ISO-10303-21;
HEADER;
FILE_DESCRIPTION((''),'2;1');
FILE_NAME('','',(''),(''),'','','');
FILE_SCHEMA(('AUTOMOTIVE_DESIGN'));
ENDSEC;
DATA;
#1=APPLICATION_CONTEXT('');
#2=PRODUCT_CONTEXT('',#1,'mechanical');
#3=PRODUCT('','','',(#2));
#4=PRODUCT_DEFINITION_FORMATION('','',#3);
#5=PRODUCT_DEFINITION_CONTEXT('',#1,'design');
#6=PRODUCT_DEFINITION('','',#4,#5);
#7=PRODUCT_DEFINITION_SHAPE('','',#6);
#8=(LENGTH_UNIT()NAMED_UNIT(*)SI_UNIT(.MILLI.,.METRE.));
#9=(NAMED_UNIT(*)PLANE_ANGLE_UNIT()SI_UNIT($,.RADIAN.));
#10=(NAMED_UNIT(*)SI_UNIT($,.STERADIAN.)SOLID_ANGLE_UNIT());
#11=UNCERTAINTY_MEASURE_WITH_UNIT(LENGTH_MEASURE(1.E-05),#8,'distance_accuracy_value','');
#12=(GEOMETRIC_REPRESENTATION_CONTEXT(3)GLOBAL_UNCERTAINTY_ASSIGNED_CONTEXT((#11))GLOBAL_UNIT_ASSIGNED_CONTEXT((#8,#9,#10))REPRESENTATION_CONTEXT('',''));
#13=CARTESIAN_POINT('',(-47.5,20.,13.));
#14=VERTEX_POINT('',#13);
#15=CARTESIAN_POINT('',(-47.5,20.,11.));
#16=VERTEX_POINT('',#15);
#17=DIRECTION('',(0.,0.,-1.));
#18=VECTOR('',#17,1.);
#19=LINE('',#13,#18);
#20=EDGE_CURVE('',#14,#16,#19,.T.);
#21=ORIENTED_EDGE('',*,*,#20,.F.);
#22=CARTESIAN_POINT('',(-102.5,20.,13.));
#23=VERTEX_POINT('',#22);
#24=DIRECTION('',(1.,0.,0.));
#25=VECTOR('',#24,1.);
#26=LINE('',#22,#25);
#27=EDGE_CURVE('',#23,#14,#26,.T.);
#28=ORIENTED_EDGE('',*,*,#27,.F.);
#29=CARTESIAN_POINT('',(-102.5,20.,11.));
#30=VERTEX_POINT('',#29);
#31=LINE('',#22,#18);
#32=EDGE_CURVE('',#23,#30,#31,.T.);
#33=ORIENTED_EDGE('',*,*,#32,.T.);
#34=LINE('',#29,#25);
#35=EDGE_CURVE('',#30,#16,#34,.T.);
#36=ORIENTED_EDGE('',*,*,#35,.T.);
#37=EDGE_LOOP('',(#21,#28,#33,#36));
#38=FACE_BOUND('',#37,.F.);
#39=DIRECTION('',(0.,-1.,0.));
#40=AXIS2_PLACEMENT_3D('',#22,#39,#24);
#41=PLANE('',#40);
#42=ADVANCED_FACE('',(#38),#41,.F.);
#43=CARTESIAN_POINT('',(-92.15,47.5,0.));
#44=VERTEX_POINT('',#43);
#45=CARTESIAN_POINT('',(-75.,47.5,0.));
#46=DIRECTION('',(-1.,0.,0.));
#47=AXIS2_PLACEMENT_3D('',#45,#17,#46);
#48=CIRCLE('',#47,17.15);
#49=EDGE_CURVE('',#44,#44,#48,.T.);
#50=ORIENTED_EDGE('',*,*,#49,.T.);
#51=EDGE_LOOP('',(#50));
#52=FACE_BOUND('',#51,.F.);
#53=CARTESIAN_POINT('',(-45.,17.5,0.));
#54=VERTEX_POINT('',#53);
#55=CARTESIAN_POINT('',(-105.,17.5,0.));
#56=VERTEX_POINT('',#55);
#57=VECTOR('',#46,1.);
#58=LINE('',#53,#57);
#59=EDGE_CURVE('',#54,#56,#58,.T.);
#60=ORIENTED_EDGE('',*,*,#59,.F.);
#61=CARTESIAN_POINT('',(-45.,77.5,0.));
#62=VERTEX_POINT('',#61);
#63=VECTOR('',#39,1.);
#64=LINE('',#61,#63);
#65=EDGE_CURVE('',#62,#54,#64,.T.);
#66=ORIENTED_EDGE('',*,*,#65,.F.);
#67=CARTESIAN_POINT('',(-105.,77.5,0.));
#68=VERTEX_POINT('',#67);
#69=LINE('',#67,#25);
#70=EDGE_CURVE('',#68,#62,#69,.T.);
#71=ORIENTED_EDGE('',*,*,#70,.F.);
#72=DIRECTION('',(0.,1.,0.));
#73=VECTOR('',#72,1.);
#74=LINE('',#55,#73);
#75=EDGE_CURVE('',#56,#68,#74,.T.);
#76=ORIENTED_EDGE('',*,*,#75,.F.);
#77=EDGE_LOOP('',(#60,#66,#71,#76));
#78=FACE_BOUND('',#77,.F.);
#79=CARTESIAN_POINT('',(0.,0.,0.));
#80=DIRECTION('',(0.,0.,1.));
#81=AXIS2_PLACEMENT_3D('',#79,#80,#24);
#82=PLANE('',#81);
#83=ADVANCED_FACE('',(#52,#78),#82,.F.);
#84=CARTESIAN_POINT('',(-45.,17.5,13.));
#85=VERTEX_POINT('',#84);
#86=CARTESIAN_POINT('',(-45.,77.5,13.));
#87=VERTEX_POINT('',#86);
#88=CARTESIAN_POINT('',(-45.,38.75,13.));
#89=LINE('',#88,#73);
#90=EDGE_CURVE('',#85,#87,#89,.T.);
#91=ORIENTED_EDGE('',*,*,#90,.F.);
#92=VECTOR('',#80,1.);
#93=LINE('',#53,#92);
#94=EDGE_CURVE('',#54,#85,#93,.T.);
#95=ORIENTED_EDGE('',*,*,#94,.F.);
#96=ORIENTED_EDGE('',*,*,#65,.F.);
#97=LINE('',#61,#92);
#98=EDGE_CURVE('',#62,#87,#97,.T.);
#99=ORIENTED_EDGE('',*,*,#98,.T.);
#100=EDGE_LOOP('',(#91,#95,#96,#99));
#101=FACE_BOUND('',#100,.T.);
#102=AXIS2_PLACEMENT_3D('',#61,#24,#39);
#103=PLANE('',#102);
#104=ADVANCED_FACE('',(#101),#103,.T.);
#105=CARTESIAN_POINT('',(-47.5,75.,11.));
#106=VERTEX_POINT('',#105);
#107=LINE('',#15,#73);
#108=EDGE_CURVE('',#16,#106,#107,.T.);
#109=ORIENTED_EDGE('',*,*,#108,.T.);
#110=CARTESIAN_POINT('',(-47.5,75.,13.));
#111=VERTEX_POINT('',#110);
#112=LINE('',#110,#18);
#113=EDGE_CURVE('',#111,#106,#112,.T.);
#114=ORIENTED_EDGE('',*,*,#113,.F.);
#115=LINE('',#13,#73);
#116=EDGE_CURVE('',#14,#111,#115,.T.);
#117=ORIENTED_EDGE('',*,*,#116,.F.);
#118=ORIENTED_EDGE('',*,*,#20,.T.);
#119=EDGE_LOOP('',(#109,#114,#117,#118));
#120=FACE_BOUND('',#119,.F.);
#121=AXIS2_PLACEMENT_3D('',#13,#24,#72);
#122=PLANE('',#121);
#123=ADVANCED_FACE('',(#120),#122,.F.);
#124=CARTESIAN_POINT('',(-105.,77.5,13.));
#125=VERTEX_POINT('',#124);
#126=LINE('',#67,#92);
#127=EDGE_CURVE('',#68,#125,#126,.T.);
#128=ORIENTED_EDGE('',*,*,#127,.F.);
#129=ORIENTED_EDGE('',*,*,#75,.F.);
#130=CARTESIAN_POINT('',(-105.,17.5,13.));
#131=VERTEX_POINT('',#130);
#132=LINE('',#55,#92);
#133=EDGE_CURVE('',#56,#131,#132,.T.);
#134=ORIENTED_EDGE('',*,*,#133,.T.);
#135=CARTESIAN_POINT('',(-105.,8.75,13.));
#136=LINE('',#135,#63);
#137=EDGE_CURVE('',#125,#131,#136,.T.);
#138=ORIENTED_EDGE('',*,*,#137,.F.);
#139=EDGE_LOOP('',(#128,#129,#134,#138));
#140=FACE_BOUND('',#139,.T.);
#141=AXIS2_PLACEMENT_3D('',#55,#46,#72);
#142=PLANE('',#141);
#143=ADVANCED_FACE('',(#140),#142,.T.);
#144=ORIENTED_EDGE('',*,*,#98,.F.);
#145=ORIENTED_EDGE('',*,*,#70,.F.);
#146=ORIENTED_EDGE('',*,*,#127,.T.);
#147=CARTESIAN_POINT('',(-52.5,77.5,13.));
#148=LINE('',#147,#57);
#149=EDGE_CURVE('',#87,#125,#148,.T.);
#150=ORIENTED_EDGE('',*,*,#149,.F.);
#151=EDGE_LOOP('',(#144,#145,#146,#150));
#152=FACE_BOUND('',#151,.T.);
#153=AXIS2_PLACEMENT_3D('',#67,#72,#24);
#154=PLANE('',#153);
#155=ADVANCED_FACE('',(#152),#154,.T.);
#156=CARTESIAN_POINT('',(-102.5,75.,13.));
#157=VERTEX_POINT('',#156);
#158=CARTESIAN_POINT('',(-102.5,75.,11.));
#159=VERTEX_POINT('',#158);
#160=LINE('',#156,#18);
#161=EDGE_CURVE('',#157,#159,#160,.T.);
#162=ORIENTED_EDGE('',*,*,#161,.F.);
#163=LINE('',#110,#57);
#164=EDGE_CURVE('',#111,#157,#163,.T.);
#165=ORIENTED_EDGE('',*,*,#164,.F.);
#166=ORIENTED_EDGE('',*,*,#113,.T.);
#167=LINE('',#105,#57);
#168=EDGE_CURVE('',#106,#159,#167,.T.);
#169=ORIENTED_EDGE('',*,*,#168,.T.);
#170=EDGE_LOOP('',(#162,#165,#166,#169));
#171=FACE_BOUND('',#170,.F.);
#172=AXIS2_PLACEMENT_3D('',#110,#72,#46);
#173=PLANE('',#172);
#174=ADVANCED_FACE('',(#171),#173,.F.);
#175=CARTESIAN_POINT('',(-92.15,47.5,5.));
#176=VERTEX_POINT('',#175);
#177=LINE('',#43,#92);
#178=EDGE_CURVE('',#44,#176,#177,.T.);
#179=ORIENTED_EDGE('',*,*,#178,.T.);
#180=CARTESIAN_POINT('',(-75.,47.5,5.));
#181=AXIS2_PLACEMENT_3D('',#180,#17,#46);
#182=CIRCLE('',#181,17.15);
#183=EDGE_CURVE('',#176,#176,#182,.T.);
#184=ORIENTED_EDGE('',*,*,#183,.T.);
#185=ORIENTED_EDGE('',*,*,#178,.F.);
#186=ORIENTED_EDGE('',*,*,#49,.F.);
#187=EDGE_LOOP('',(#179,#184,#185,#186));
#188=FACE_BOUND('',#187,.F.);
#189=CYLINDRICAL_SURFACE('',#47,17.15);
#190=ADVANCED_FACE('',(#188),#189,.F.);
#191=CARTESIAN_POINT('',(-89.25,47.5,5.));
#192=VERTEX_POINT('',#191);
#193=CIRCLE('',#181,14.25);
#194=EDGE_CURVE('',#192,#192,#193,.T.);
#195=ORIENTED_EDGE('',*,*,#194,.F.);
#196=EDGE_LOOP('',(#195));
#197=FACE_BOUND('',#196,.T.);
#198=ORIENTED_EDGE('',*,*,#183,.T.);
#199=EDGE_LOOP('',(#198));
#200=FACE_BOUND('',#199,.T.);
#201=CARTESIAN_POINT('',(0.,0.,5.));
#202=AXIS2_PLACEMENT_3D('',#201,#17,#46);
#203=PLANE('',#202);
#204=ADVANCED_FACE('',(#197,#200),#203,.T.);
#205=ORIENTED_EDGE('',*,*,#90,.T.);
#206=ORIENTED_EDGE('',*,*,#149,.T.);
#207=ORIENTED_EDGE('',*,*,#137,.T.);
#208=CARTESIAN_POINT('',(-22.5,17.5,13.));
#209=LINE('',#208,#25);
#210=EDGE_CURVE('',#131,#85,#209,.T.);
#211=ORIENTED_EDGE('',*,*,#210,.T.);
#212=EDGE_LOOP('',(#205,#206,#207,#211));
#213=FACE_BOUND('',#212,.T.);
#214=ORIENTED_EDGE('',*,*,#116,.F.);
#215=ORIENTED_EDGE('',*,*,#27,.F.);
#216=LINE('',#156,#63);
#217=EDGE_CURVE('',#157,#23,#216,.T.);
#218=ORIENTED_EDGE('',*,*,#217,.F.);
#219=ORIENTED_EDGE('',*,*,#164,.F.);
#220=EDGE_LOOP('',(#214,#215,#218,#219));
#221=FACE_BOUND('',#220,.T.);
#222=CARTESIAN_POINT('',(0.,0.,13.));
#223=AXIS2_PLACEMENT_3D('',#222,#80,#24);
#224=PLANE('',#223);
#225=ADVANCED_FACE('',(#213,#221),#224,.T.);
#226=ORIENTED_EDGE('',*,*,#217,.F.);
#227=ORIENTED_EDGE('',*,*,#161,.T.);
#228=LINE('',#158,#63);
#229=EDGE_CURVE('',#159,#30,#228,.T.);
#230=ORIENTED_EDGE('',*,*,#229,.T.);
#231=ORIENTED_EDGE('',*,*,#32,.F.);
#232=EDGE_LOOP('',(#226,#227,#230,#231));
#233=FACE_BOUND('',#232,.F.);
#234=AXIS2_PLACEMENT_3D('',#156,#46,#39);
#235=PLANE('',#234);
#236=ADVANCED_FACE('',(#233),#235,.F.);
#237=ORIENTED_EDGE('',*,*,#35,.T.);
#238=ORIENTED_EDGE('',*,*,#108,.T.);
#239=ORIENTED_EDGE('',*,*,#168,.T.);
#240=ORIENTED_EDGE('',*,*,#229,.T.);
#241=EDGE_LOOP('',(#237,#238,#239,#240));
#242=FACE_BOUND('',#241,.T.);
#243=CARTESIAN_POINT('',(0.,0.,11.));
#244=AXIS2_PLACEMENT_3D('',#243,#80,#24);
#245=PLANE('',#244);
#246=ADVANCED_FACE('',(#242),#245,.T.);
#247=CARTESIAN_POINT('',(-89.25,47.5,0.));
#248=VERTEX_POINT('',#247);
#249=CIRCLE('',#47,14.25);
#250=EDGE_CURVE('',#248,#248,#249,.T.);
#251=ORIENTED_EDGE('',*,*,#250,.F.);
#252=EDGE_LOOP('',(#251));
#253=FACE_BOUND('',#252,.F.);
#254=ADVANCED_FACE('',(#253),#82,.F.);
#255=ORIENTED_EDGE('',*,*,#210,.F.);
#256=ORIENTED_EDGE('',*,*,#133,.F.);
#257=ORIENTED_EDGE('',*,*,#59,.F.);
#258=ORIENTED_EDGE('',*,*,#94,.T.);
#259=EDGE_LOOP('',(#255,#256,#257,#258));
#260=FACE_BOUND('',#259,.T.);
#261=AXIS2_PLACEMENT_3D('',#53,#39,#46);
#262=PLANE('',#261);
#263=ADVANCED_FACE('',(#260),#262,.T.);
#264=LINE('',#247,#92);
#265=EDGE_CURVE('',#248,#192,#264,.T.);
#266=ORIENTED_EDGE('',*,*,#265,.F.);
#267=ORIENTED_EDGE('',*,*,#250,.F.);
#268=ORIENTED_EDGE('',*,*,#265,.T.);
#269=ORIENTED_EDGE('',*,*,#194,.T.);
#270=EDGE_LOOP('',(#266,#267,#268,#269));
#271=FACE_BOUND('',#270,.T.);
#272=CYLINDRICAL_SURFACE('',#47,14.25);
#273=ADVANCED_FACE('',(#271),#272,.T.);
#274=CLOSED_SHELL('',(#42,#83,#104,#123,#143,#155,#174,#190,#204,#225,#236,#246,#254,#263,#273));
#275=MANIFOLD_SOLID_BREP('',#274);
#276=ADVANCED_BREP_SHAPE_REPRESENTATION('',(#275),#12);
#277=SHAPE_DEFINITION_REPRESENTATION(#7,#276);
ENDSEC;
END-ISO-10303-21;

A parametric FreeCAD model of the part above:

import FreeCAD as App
import Part
import Sketcher

V = App.Vector


def add_polygon(sketch, points):
    """Adds a closed chain of lines whose ends are joined by coincident constraints."""
    first, n = sketch.GeometryCount, len(points)
    for a, b in zip(points, points[1:] + points[:1]):
        sketch.addGeometry(Part.LineSegment(App.Vector(*a, 0), App.Vector(*b, 0)), False)
    for i in range(n):
        sketch.addConstraint(Sketcher.Constraint("Coincident", first + i, 2, first + (i + 1) % n, 1))

doc = App.newDocument("Part")
body = doc.addObject("PartDesign::Body", "Body")

sketch1 = body.newObject("Sketcher::SketchObject", "Sketch")
sketch1.AttachmentSupport = (doc.getObject("XY_Plane"), [""])
sketch1.MapMode = "FlatFace"
add_polygon(sketch1, [(-150, 0), (0, 0), (0, 95), (-150, 95)])
sketch1.addConstraint([
    Sketcher.Constraint("Horizontal", 0),
    Sketcher.Constraint("Vertical", 1),
    Sketcher.Constraint("Horizontal", 2),
    Sketcher.Constraint("Vertical", 3),
    Sketcher.Constraint("Coincident", 0, 2, -1, 1),
    Sketcher.Constraint("DistanceX", 0, 1, 0, 2, 150.0),
    Sketcher.Constraint("DistanceY", 1, 1, 1, 2, 95.0),
])
pad1 = body.newObject("PartDesign::Pad", "Pad")
pad1.Profile = sketch1
pad1.Length = 15

sketch2 = body.newObject("Sketcher::SketchObject", "Sketch001")
sketch2.AttachmentSupport = (doc.getObject("XY_Plane"), [""])
sketch2.MapMode = "FlatFace"
sketch2.AttachmentOffset = App.Placement(V(0, 0, 15), App.Rotation())
add_polygon(sketch2, [(-117.5, 5), (-32.5, 5), (-32.5, 90), (-117.5, 90)])
sketch2.addConstraint([
    Sketcher.Constraint("Horizontal", 0),
    Sketcher.Constraint("Vertical", 1),
    Sketcher.Constraint("Horizontal", 2),
    Sketcher.Constraint("Vertical", 3),
    Sketcher.Constraint("Equal", 2, 1),
    Sketcher.Constraint("DistanceX", 0, 1, 0, 2, 85.0),
    Sketcher.Constraint("DistanceY", -1, 1, 0, 2, 5.0),
    Sketcher.Constraint("DistanceX", 0, 2, -1, 1, 32.5),
])
pocket1 = body.newObject("PartDesign::Pocket", "Pocket")
pocket1.Profile = sketch2
pocket1.Length = 2

sketch3 = body.newObject("Sketcher::SketchObject", "Sketch002")
sketch3.AttachmentSupport = (doc.getObject("XY_Plane"), [""])
sketch3.MapMode = "FlatFace"
sketch3.AttachmentOffset = App.Placement(V(0, 0, 13), App.Rotation())
add_polygon(sketch3, [(-47.5, 20), (-47.5, 75), (-102.5, 75), (-102.5, 20)])
sketch3.addConstraint([
    Sketcher.Constraint("Vertical", 0),
    Sketcher.Constraint("Horizontal", 1),
    Sketcher.Constraint("Vertical", 2),
    Sketcher.Constraint("Horizontal", 3),
    Sketcher.Constraint("Equal", 3, 0),
    Sketcher.Constraint("DistanceX", 1, 2, 1, 1, 55.0),
    Sketcher.Constraint("DistanceY", -1, 1, 0, 2, 75.0),
    Sketcher.Constraint("DistanceX", 0, 2, -1, 1, 47.5),
])
pocket2 = body.newObject("PartDesign::Pocket", "Pocket001")
pocket2.Profile = sketch3
pocket2.Length = 2

sketch4 = body.newObject("Sketcher::SketchObject", "Sketch003")
sketch4.AttachmentSupport = (doc.getObject("XY_Plane"), [""])
sketch4.MapMode = "FlatFace"
sketch4.addGeometry(Part.Circle(V(-75, 47.5, 0), V(0, 0, 1), 17.15), False)
sketch4.addGeometry(Part.Circle(V(-75, 47.5, 0), V(0, 0, 1), 14.25), False)
add_polygon(sketch4, [(-2.5, 7.5), (-2.5, 2.5), (-7.5, 2.5), (-7.5, 7.5)])
add_polygon(sketch4, [(-142.5, 2.5), (-147.5, 2.5), (-147.5, 7.5), (-142.5, 7.5)])
add_polygon(sketch4, [(-7.5, 92.5), (-2.5, 92.5), (-2.5, 87.5), (-7.5, 87.5)])
add_polygon(sketch4, [(-147.5, 87.5), (-147.5, 92.5), (-142.5, 92.5), (-142.5, 87.5)])
sketch4.addConstraint([
    Sketcher.Constraint("Vertical", 2),
    Sketcher.Constraint("Horizontal", 3),
    Sketcher.Constraint("Vertical", 4),
    Sketcher.Constraint("Horizontal", 5),
    Sketcher.Constraint("Horizontal", 6),
    Sketcher.Constraint("Vertical", 7),
    Sketcher.Constraint("Horizontal", 8),
    Sketcher.Constraint("Vertical", 9),
    Sketcher.Constraint("Horizontal", 10),
    Sketcher.Constraint("Vertical", 11),
    Sketcher.Constraint("Horizontal", 12),
    Sketcher.Constraint("Vertical", 13),
    Sketcher.Constraint("Vertical", 14),
    Sketcher.Constraint("Horizontal", 15),
    Sketcher.Constraint("Vertical", 16),
    Sketcher.Constraint("Horizontal", 17),
    Sketcher.Constraint("Coincident", 1, 3, 0, 3),
    Sketcher.Constraint("Horizontal", 3, 2, 6, 2),
    Sketcher.Constraint("Horizontal", 5, 2, 7, 2),
    Sketcher.Constraint("Horizontal", 13, 2, 14, 2),
    Sketcher.Constraint("Horizontal", 12, 2, 16, 2),
    Sketcher.Constraint("Vertical", 5, 2, 10, 2),
    Sketcher.Constraint("Vertical", 4, 2, 12, 2),
    Sketcher.Constraint("Vertical", 7, 2, 14, 2),
    Sketcher.Constraint("Vertical", 9, 2, 15, 2),
    Sketcher.Constraint("Equal", 5, 6),
    Sketcher.Constraint("Equal", 17, 2),
    Sketcher.Constraint("Equal", 9, 11),
    Sketcher.Constraint("Diameter", 0, 34.3),
    Sketcher.Constraint("Diameter", 1, 28.5),
    Sketcher.Constraint("DistanceX", 3, 2, 3, 1, 5.0),
    Sketcher.Constraint("DistanceX", 0, 3, -1, 1, 75.0),
    Sketcher.Constraint("DistanceY", 2, 2, 0, 3, 45.0),
    Sketcher.Constraint("DistanceX", 6, 2, 3, 2, 140.0),
    Sketcher.Constraint("DistanceY", 5, 2, 10, 2, 85.0),
    Sketcher.Constraint("DistanceY", -1, 1, 0, 3, 47.5),
    Sketcher.Constraint("DistanceX", 2, 2, -1, 1, 2.5),
])
pocket3 = body.newObject("PartDesign::Pocket", "Pocket002")
pocket3.Profile = sketch4
pocket3.Length = 5
pocket3.Reversed = True

sketch5 = body.newObject("Sketcher::SketchObject", "Sketch004")
sketch5.AttachmentSupport = (doc.getObject("XY_Plane"), [""])
sketch5.MapMode = "FlatFace"
add_polygon(sketch5, [(0, 0), (-150, 0), (-150, 95), (0, 95)])
add_polygon(sketch5, [(-45, 77.5), (-105, 77.5), (-105, 17.5), (-45, 17.5)])
sketch5.addConstraint([
    Sketcher.Constraint("Horizontal", 0),
    Sketcher.Constraint("Vertical", 1),
    Sketcher.Constraint("Horizontal", 2),
    Sketcher.Constraint("Vertical", 3),
    Sketcher.Constraint("Horizontal", 4),
    Sketcher.Constraint("Vertical", 5),
    Sketcher.Constraint("Horizontal", 6),
    Sketcher.Constraint("Vertical", 7),
    Sketcher.Constraint("Coincident", 3, 2, -1, 1),
    Sketcher.Constraint("Equal", 6, 5),
    Sketcher.Constraint("DistanceX", 0, 2, 0, 1, 150.0),
    Sketcher.Constraint("DistanceX", 4, 2, 4, 1, 60.0),
    Sketcher.Constraint("DistanceY", 1, 1, 1, 2, 95.0),
    Sketcher.Constraint("DistanceX", 4, 2, -1, 1, 105.0),
    Sketcher.Constraint("DistanceY", -1, 1, 4, 2, 77.5),
])
pocket4 = body.newObject("PartDesign::Pocket", "Pocket003")
pocket4.Profile = sketch5
pocket4.Length = 15
pocket4.Reversed = True

doc.recompute()
